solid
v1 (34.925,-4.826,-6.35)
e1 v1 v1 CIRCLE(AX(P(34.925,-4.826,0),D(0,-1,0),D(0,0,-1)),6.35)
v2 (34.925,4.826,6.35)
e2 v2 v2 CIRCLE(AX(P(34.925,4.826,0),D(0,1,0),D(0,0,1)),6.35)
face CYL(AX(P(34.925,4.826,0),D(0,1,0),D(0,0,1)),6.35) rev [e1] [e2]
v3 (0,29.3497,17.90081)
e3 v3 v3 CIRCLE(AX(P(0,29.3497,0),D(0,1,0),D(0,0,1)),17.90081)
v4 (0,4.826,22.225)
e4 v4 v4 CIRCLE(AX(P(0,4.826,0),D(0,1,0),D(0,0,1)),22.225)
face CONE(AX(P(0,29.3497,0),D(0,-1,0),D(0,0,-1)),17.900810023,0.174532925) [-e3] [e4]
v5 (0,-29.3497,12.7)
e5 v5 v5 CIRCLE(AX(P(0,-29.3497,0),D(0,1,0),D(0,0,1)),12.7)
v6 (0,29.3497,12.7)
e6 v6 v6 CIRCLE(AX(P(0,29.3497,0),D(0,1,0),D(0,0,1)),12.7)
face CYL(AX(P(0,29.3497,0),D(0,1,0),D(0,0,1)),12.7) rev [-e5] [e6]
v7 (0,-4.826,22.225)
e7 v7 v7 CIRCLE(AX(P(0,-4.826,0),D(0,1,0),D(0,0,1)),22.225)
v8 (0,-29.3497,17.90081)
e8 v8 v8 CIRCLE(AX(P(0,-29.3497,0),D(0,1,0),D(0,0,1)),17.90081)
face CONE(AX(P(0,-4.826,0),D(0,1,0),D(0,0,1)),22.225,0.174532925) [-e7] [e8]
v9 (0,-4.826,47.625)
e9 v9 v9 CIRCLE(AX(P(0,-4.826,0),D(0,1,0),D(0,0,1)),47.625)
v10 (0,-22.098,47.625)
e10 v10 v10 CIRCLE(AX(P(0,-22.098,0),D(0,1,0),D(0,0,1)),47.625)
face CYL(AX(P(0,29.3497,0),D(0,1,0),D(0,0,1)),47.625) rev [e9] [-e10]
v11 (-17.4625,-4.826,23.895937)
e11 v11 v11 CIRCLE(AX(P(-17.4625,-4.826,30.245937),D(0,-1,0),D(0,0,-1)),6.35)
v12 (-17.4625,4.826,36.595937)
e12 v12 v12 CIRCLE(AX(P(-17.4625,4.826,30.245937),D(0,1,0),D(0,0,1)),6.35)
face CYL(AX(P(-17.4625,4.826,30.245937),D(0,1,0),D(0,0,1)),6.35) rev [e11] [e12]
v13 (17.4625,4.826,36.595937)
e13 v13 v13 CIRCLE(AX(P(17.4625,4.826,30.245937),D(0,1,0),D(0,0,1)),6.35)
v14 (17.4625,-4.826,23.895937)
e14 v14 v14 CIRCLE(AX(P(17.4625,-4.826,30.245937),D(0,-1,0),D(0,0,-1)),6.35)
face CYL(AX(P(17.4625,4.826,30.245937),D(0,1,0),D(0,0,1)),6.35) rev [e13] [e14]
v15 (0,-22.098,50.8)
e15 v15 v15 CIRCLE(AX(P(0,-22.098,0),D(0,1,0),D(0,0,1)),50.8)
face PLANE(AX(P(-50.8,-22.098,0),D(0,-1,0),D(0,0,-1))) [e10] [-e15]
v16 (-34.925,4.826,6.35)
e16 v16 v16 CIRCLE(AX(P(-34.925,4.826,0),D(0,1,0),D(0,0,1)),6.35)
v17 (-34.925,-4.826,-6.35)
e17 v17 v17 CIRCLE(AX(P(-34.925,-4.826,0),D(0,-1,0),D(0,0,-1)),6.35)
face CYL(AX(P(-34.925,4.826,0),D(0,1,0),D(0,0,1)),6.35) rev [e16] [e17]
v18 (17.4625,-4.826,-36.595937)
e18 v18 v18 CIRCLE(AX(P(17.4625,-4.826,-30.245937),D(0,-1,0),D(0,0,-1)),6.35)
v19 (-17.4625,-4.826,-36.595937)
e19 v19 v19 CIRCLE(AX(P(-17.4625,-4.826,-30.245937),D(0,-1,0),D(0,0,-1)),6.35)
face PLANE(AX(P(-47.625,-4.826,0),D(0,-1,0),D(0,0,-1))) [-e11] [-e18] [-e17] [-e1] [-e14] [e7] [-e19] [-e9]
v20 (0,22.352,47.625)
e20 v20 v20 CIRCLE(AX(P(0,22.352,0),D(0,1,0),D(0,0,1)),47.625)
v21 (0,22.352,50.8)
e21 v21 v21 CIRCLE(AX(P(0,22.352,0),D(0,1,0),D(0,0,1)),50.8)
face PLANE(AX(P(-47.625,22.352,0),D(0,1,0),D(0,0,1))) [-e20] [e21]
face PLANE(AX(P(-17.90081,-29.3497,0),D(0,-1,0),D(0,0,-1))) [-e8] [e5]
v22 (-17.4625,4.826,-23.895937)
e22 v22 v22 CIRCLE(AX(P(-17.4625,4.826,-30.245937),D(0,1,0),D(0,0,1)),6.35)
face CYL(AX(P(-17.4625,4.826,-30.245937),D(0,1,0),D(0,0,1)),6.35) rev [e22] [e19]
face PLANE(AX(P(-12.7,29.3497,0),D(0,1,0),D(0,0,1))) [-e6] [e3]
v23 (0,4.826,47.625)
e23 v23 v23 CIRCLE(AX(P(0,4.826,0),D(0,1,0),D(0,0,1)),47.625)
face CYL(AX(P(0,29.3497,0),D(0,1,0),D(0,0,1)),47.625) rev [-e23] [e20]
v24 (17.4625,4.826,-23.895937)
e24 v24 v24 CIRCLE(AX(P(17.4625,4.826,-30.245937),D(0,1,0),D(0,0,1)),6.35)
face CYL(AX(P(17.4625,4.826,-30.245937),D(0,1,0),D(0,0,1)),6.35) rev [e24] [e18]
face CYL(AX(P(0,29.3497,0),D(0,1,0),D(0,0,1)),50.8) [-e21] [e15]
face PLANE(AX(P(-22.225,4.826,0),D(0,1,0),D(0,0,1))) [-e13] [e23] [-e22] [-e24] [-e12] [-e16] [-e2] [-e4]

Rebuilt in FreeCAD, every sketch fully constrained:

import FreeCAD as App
import Part
import Sketcher
Q = App.Units.Quantity

doc = App.newDocument("Part")
params = doc.addObject("Spreadsheet::Sheet", "Params")
for row, (alias, value) in enumerate([
    ("sketch1_width", "1 in"),
    ("sketch1_height", "0.69 in"),
    ("sketch1_height2", "1.75 in"),
    ("sketch1_height3", "0.68 in"),
    ("sketch1_width2", "0.125 in"),
    ("revolution_angle", "360 deg"),
    ("sketch2_diameter", "0.5 in"),
    ("hole_diameter", "0.5 in"),
], start=1):
    params.set(f"A{row}", alias)
    params.set(f"B{row}", "=" + value)
    params.setAlias(f"B{row}", alias)

body = doc.addObject("PartDesign::Body", "Body")

# Sketch on XY plane
sketch1 = doc.addObject("Sketcher::SketchObject", "Sketch")
body.addObject(sketch1)
sketch1.AttachmentSupport = (doc.XY_Plane, [""])
sketch1.MapMode = "FlatFace"
sketch1.addGeometry(Part.LineSegment(App.Vector(-12.7, 29.3497, 0), App.Vector(-17.90081, 29.3497, 0)), False)
sketch1.addGeometry(Part.LineSegment(App.Vector(-17.90081, 29.3497, 0), App.Vector(-22.225, 4.826, 0)), False)
sketch1.addGeometry(Part.LineSegment(App.Vector(-22.225, 4.826, 0), App.Vector(-47.625, 4.826, 0)), False)
sketch1.addGeometry(Part.LineSegment(App.Vector(-47.625, 4.826, 0), App.Vector(-47.625, 22.352, 0)), False)
sketch1.addGeometry(Part.LineSegment(App.Vector(-47.625, 22.352, 0), App.Vector(-50.8, 22.352, 0)), False)
sketch1.addGeometry(Part.LineSegment(App.Vector(-50.8, 22.352, 0), App.Vector(-50.8, -22.098, 0)), False)
sketch1.addGeometry(Part.LineSegment(App.Vector(-50.8, -22.098, 0), App.Vector(-47.625, -22.098, 0)), False)
sketch1.addGeometry(Part.LineSegment(App.Vector(-47.625, -22.098, 0), App.Vector(-47.625, -4.826, 0)), False)
sketch1.addGeometry(Part.LineSegment(App.Vector(-47.625, -4.826, 0), App.Vector(-22.225, -4.826, 0)), False)
sketch1.addGeometry(Part.LineSegment(App.Vector(-22.225, -4.826, 0), App.Vector(-17.90081, -29.3497, 0)), False)
sketch1.addGeometry(Part.LineSegment(App.Vector(-17.90081, -29.3497, 0), App.Vector(-12.7, -29.3497, 0)), False)
sketch1.addGeometry(Part.LineSegment(App.Vector(-12.7, -29.3497, 0), App.Vector(-12.7, 29.3497, 0)), False)
sketch1.addConstraint(Sketcher.Constraint("Coincident", 0, 2, 1, 1))
sketch1.addConstraint(Sketcher.Constraint("Coincident", 1, 2, 2, 1))
sketch1.addConstraint(Sketcher.Constraint("Coincident", 2, 2, 3, 1))
sketch1.addConstraint(Sketcher.Constraint("Coincident", 3, 2, 4, 1))
sketch1.addConstraint(Sketcher.Constraint("Coincident", 4, 2, 5, 1))
sketch1.addConstraint(Sketcher.Constraint("Coincident", 5, 2, 6, 1))
sketch1.addConstraint(Sketcher.Constraint("Coincident", 6, 2, 7, 1))
sketch1.addConstraint(Sketcher.Constraint("Coincident", 7, 2, 8, 1))
sketch1.addConstraint(Sketcher.Constraint("Coincident", 8, 2, 9, 1))
sketch1.addConstraint(Sketcher.Constraint("Coincident", 9, 2, 10, 1))
sketch1.addConstraint(Sketcher.Constraint("Coincident", 10, 2, 11, 1))
sketch1.addConstraint(Sketcher.Constraint("Coincident", 11, 2, 0, 1))
sketch1.addConstraint(Sketcher.Constraint("Horizontal", 0))
sketch1.addConstraint(Sketcher.Constraint("Horizontal", 2))
sketch1.addConstraint(Sketcher.Constraint("Vertical", 3))
sketch1.addConstraint(Sketcher.Constraint("Horizontal", 4))
sketch1.addConstraint(Sketcher.Constraint("Vertical", 5))
sketch1.addConstraint(Sketcher.Constraint("Horizontal", 6))
sketch1.addConstraint(Sketcher.Constraint("Vertical", 7))
sketch1.addConstraint(Sketcher.Constraint("Horizontal", 8))
sketch1.addConstraint(Sketcher.Constraint("Horizontal", 10))
sketch1.addConstraint(Sketcher.Constraint("Vertical", 11))
sketch1.addConstraint(Sketcher.Constraint("Symmetric", 2, 2, 7, 2, -1))
sketch1.addConstraint(Sketcher.Constraint("Symmetric", 0, 2, 9, 2, -1))
sketch1.addConstraint(Sketcher.Constraint("Vertical", 1, 2, 8, 2))
sketch1.addConstraint(Sketcher.Constraint("DistanceX", 2, 2, 2, 1, Q("1 in")))
sketch1.addConstraint(Sketcher.Constraint("DistanceX", 4, 2, -1, 1, Q("2 in")))
sketch1.addConstraint(Sketcher.Constraint("Angle", 1, Q("-100 deg")))
sketch1.addConstraint(Sketcher.Constraint("DistanceY", 3, 1, 3, 2, Q("0.69 in")))
sketch1.addConstraint(Sketcher.Constraint("DistanceY", 5, 2, 5, 1, Q("1.75 in")))
sketch1.addConstraint(Sketcher.Constraint("DistanceY", 7, 1, 7, 2, Q("0.68 in")))
sketch1.addConstraint(Sketcher.Constraint("DistanceX", 10, 2, -1, 1, Q("0.5 in")))
sketch1.addConstraint(Sketcher.Constraint("DistanceX", 4, 2, 4, 1, Q("0.125 in")))
sketch1.addConstraint(Sketcher.Constraint("DistanceY", 11, 1, 11, 2, Q("2.311 in")))
sketch1.setExpression("Constraints[25]", "Params.sketch1_width")
sketch1.setExpression("Constraints[28]", "Params.sketch1_height")
sketch1.setExpression("Constraints[29]", "Params.sketch1_height2")
sketch1.setExpression("Constraints[30]", "Params.sketch1_height3")
sketch1.setExpression("Constraints[32]", "Params.sketch1_width2")
revolution = doc.addObject("PartDesign::Revolution", "Revolution")
body.addObject(revolution)
revolution.Profile = sketch1
revolution.ReferenceAxis = (sketch1, ["V_Axis"])
revolution.setExpression("Angle", "Params.revolution_angle")

# Sketch on XZ plane
sketch2 = doc.addObject("Sketcher::SketchObject", "Sketch001")
body.addObject(sketch2)
sketch2.AttachmentSupport = (doc.XZ_Plane, [""])
sketch2.MapMode = "FlatFace"
sketch2.AttachmentOffset = App.Placement(App.Vector(0, 0, -0.19 * 25.4), App.Rotation())
sketch2.addGeometry(Part.Circle(App.Vector(-17.4625, -30.245937, 0), App.Vector(0, 0, 1), 6.35), False)
sketch2.addGeometry(Part.Circle(App.Vector(17.4625, -30.245937, 0), App.Vector(0, 0, 1), 6.35), False)
sketch2.addGeometry(Part.Circle(App.Vector(-34.925, 0, 0), App.Vector(0, 0, 1), 6.35), False)
sketch2.addGeometry(Part.Circle(App.Vector(34.925, 0, 0), App.Vector(0, 0, 1), 6.35), False)
sketch2.addGeometry(Part.Circle(App.Vector(-17.4625, 30.245937, 0), App.Vector(0, 0, 1), 6.35), False)
sketch2.addGeometry(Part.Circle(App.Vector(17.4625, 30.245937, 0), App.Vector(0, 0, 1), 6.35), False)
sketch2.addConstraint(Sketcher.Constraint("Equal", 0, 1))
sketch2.addConstraint(Sketcher.Constraint("Equal", 1, 2))
sketch2.addConstraint(Sketcher.Constraint("Equal", 2, 3))
sketch2.addConstraint(Sketcher.Constraint("Equal", 3, 4))
sketch2.addConstraint(Sketcher.Constraint("Equal", 4, 5))
sketch2.addConstraint(Sketcher.Constraint("Symmetric", 2, 3, 3, 3, -1, 1))
sketch2.addConstraint(Sketcher.Constraint("Symmetric", 1, 3, 4, 3, -1, 1))
sketch2.addConstraint(Sketcher.Constraint("Symmetric", 0, 3, 5, 3, -1, 1))
sketch2.addConstraint(Sketcher.Constraint("Symmetric", 0, 3, 1, 3, -2))
sketch2.addConstraint(Sketcher.Constraint("PointOnObject", 2, 3, -1))
sketch2.addConstraint(Sketcher.Constraint("Diameter", 0, Q("0.5 in")))
sketch2.addConstraint(Sketcher.Constraint("DistanceX", 2, 3, 3, 3, Q("2.75 in")))
sketch2.addConstraint(Sketcher.Constraint("DistanceX", 0, 3, -1, 1, Q("0.6875 in")))
sketch2.addConstraint(Sketcher.Constraint("DistanceY", 0, 3, -1, 1, 30.245937))
sketch2.setExpression("Constraints[10]", "Params.sketch2_diameter")
doc.recompute()
hole = doc.addObject("PartDesign::Hole", "Hole")
body.addObject(hole)
hole.Profile = sketch2
hole.ThreadType = "None"
hole.setExpression("Diameter", "Params.hole_diameter")
hole.DepthType = "ThroughAll"
hole.Reversed = True

doc.recompute()
